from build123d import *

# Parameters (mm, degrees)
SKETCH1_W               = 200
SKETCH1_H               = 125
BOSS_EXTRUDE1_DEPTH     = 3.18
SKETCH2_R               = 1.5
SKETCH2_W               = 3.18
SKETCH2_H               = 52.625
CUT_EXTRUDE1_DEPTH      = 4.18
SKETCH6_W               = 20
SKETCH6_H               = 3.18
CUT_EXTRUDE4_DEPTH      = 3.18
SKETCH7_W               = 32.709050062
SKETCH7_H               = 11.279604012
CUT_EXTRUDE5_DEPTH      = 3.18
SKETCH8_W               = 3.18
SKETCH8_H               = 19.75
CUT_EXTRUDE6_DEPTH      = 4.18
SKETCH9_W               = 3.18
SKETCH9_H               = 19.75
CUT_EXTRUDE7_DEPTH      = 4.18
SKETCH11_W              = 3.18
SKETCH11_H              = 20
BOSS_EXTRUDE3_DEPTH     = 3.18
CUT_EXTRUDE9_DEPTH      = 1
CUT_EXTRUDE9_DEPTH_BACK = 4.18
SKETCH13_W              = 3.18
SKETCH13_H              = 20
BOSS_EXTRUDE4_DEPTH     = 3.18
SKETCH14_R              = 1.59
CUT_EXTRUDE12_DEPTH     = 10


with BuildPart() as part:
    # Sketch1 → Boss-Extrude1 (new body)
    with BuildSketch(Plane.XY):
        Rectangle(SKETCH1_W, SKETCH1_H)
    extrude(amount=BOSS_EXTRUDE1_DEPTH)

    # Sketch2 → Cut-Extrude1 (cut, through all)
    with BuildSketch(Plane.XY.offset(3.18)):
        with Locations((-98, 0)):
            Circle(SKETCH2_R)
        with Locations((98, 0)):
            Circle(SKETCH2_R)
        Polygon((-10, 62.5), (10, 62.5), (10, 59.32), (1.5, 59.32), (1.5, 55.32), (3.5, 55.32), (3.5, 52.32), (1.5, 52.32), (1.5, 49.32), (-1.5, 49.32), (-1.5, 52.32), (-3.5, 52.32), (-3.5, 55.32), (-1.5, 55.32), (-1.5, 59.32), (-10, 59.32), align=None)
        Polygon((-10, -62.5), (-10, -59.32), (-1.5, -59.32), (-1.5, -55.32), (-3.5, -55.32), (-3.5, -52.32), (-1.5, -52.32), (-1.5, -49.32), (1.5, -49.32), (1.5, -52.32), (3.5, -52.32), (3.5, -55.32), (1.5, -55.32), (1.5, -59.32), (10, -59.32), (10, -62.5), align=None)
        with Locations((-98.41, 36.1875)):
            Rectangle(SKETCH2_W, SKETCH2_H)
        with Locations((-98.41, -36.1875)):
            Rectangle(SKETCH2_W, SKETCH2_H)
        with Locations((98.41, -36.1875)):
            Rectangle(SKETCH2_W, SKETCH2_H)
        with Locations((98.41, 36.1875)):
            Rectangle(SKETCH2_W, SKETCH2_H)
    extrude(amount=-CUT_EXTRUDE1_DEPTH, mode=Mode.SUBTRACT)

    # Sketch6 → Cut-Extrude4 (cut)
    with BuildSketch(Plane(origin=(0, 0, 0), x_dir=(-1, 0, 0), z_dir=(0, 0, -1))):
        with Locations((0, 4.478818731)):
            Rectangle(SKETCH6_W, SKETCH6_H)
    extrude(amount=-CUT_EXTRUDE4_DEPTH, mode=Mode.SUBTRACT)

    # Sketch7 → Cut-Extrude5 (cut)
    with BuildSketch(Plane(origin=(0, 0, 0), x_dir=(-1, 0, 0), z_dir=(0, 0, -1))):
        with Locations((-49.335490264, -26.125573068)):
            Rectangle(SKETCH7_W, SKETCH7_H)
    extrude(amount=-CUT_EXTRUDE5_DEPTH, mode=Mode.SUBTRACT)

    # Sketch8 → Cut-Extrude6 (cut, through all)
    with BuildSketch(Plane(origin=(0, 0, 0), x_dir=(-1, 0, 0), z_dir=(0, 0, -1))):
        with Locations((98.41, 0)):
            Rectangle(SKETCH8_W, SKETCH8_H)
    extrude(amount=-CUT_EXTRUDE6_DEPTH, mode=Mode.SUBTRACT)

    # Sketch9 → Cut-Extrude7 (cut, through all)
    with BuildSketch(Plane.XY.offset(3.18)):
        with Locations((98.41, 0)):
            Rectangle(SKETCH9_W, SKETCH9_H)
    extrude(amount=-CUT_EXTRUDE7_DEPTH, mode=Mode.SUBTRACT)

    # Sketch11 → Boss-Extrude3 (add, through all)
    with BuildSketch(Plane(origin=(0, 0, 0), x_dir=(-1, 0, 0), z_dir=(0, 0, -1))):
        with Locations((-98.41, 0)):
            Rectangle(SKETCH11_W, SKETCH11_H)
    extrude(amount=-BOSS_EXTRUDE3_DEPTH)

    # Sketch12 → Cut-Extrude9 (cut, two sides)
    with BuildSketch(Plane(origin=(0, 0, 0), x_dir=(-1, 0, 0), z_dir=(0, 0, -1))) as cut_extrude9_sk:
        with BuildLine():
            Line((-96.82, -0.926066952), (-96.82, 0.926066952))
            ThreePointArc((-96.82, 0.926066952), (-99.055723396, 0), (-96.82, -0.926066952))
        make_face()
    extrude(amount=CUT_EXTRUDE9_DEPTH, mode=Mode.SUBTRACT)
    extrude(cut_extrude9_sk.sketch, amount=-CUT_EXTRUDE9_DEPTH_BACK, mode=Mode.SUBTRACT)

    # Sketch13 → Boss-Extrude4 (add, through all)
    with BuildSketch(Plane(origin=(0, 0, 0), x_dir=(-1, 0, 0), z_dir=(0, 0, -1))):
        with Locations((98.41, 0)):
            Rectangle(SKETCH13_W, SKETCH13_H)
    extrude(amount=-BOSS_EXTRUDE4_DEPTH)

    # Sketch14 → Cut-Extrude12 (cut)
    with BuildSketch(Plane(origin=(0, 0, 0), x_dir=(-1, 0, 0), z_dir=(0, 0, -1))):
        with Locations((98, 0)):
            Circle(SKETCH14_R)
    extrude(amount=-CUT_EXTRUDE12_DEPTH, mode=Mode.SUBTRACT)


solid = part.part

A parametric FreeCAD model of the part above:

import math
import FreeCAD as App
import Part
import Sketcher

doc = App.newDocument("Part")
body = doc.addObject("PartDesign::Body", "Body")

# Sketch on XY plane
sketch1 = body.newObject("Sketcher::SketchObject", "Sketch")
sketch1.AttachmentSupport = (doc.getObject("XY_Plane"), [""])
sketch1.MapMode = "FlatFace"
sketch1.addGeometry(Part.LineSegment(App.Vector(-100, 62, 0), App.Vector(-100, -62, 0)), False)
sketch1.addGeometry(Part.LineSegment(App.Vector(-100, -62, 0), App.Vector(100, -62, 0)), False)
sketch1.addGeometry(Part.LineSegment(App.Vector(100, -62, 0), App.Vector(100, 62, 0)), False)
sketch1.addGeometry(Part.LineSegment(App.Vector(100, 62, 0), App.Vector(-100, 62, 0)), False)
sketch1.addConstraint(Sketcher.Constraint("Coincident", 0, 2, 1, 1))
sketch1.addConstraint(Sketcher.Constraint("Coincident", 1, 2, 2, 1))
sketch1.addConstraint(Sketcher.Constraint("Coincident", 2, 2, 3, 1))
sketch1.addConstraint(Sketcher.Constraint("Coincident", 3, 2, 0, 1))
sketch1.addConstraint(Sketcher.Constraint("Vertical", 0))
sketch1.addConstraint(Sketcher.Constraint("Horizontal", 1))
sketch1.addConstraint(Sketcher.Constraint("Vertical", 2))
sketch1.addConstraint(Sketcher.Constraint("Horizontal", 3))
sketch1.addConstraint(Sketcher.Constraint("Symmetric", 0, 2, 2, 2, -1, 1))
sketch1.addConstraint(Sketcher.Constraint("DistanceX", 1, 1, 1, 2, 200.0))
sketch1.addConstraint(Sketcher.Constraint("DistanceY", 0, 2, 0, 1, 125.0))
pad1 = body.newObject("PartDesign::Pad", "Pad")
pad1.Profile = sketch1
pad1.Length = 3.18

# Sketch on XY plane
sketch2 = body.newObject("Sketcher::SketchObject", "Sketch001")
sketch2.AttachmentSupport = (doc.getObject("XY_Plane"), [""])
sketch2.MapMode = "FlatFace"
sketch2.AttachmentOffset = App.Placement(App.Vector(0, 0, 3.18), App.Rotation())
sketch2.addGeometry(Part.Circle(App.Vector(-98, 0, 0), App.Vector(0, 0, 1), 1.5), False)
sketch2.addGeometry(Part.Circle(App.Vector(98, 0, 0), App.Vector(0, 0, 1), 1.5), False)
sketch2.addGeometry(Part.LineSegment(App.Vector(10, 62.5, 0), App.Vector(-10, 62.5, 0)), False)
sketch2.addGeometry(Part.LineSegment(App.Vector(-10, 62.5, 0), App.Vector(-10, 59.3, 0)), False)
sketch2.addGeometry(Part.LineSegment(App.Vector(-10, 59.3, 0), App.Vector(-1.5, 59.3, 0)), False)
sketch2.addGeometry(Part.LineSegment(App.Vector(-1.5, 59.3, 0), App.Vector(-1.5, 55.3, 0)), False)
sketch2.addGeometry(Part.LineSegment(App.Vector(-1.5, 55.3, 0), App.Vector(-3.5, 55.3, 0)), False)
sketch2.addGeometry(Part.LineSegment(App.Vector(-3.5, 55.3, 0), App.Vector(-3.5, 52.3, 0)), False)
sketch2.addGeometry(Part.LineSegment(App.Vector(-3.5, 52.3, 0), App.Vector(-1.5, 52.3, 0)), False)
sketch2.addGeometry(Part.LineSegment(App.Vector(-1.5, 52.3, 0), App.Vector(-1.5, 49.3, 0)), False)
sketch2.addGeometry(Part.LineSegment(App.Vector(-1.5, 49.3, 0), App.Vector(1.5, 49.3, 0)), False)
sketch2.addGeometry(Part.LineSegment(App.Vector(1.5, 49.3, 0), App.Vector(1.5, 52.3, 0)), False)
sketch2.addGeometry(Part.LineSegment(App.Vector(1.5, 52.3, 0), App.Vector(3.5, 52.3, 0)), False)
sketch2.addGeometry(Part.LineSegment(App.Vector(3.5, 52.3, 0), App.Vector(3.5, 55.3, 0)), False)
sketch2.addGeometry(Part.LineSegment(App.Vector(3.5, 55.3, 0), App.Vector(1.5, 55.3, 0)), False)
sketch2.addGeometry(Part.LineSegment(App.Vector(1.5, 55.3, 0), App.Vector(1.5, 59.3, 0)), False)
sketch2.addGeometry(Part.LineSegment(App.Vector(1.5, 59.3, 0), App.Vector(10, 59.3, 0)), False)
sketch2.addGeometry(Part.LineSegment(App.Vector(10, 59.3, 0), App.Vector(10, 62.5, 0)), False)
sketch2.addGeometry(Part.LineSegment(App.Vector(-10, -59.3, 0), App.Vector(-10, -62.5, 0)), False)
sketch2.addGeometry(Part.LineSegment(App.Vector(-10, -62.5, 0), App.Vector(10, -62.5, 0)), False)
sketch2.addGeometry(Part.LineSegment(App.Vector(10, -62.5, 0), App.Vector(10, -59.3, 0)), False)
sketch2.addGeometry(Part.LineSegment(App.Vector(10, -59.3, 0), App.Vector(1.5, -59.3, 0)), False)
sketch2.addGeometry(Part.LineSegment(App.Vector(1.5, -59.3, 0), App.Vector(1.5, -55.3, 0)), False)
sketch2.addGeometry(Part.LineSegment(App.Vector(1.5, -55.3, 0), App.Vector(3.5, -55.3, 0)), False)
sketch2.addGeometry(Part.LineSegment(App.Vector(3.5, -55.3, 0), App.Vector(3.5, -52.3, 0)), False)
sketch2.addGeometry(Part.LineSegment(App.Vector(3.5, -52.3, 0), App.Vector(1.5, -52.3, 0)), False)
sketch2.addGeometry(Part.LineSegment(App.Vector(1.5, -52.3, 0), App.Vector(1.5, -49.3, 0)), False)
sketch2.addGeometry(Part.LineSegment(App.Vector(1.5, -49.3, 0), App.Vector(-1.5, -49.3, 0)), False)
sketch2.addGeometry(Part.LineSegment(App.Vector(-1.5, -49.3, 0), App.Vector(-1.5, -52.3, 0)), False)
sketch2.addGeometry(Part.LineSegment(App.Vector(-1.5, -52.3, 0), App.Vector(-3.5, -52.3, 0)), False)
sketch2.addGeometry(Part.LineSegment(App.Vector(-3.5, -52.3, 0), App.Vector(-3.5, -55.3, 0)), False)
sketch2.addGeometry(Part.LineSegment(App.Vector(-3.5, -55.3, 0), App.Vector(-1.5, -55.3, 0)), False)
sketch2.addGeometry(Part.LineSegment(App.Vector(-1.5, -55.3, 0), App.Vector(-1.5, -59.3, 0)), False)
sketch2.addGeometry(Part.LineSegment(App.Vector(-1.5, -59.3, 0), App.Vector(-10, -59.3, 0)), False)
sketch2.addGeometry(Part.LineSegment(App.Vector(-100, 62.5, 0), App.Vector(-100, 9.9, 0)), False)
sketch2.addGeometry(Part.LineSegment(App.Vector(-100, 9.9, 0), App.Vector(-96.8, 9.9, 0)), False)
sketch2.addGeometry(Part.LineSegment(App.Vector(-96.8, 9.9, 0), App.Vector(-96.8, 62.5, 0)), False)
sketch2.addGeometry(Part.LineSegment(App.Vector(-96.8, 62.5, 0), App.Vector(-100, 62.5, 0)), False)
sketch2.addGeometry(Part.LineSegment(App.Vector(-100, -9.9, 0), App.Vector(-100, -62.5, 0)), False)
sketch2.addGeometry(Part.LineSegment(App.Vector(-100, -62.5, 0), App.Vector(-96.8, -62.5, 0)), False)
sketch2.addGeometry(Part.LineSegment(App.Vector(-96.8, -62.5, 0), App.Vector(-96.8, -9.9, 0)), False)
sketch2.addGeometry(Part.LineSegment(App.Vector(-96.8, -9.9, 0), App.Vector(-100, -9.9, 0)), False)
sketch2.addGeometry(Part.LineSegment(App.Vector(96.8, -9.9, 0), App.Vector(96.8, -62.5, 0)), False)
sketch2.addGeometry(Part.LineSegment(App.Vector(96.8, -62.5, 0), App.Vector(100, -62.5, 0)), False)
sketch2.addGeometry(Part.LineSegment(App.Vector(100, -62.5, 0), App.Vector(100, -9.9, 0)), False)
sketch2.addGeometry(Part.LineSegment(App.Vector(100, -9.9, 0), App.Vector(96.8, -9.9, 0)), False)
sketch2.addGeometry(Part.LineSegment(App.Vector(96.8, 62.5, 0), App.Vector(96.8, 9.9, 0)), False)
sketch2.addGeometry(Part.LineSegment(App.Vector(96.8, 9.9, 0), App.Vector(100, 9.9, 0)), False)
sketch2.addGeometry(Part.LineSegment(App.Vector(100, 9.9, 0), App.Vector(100, 62.5, 0)), False)
sketch2.addGeometry(Part.LineSegment(App.Vector(100, 62.5, 0), App.Vector(96.8, 62.5, 0)), False)
sketch2.addConstraint(Sketcher.Constraint("Coincident", 2, 2, 3, 1))
sketch2.addConstraint(Sketcher.Constraint("Coincident", 3, 2, 4, 1))
sketch2.addConstraint(Sketcher.Constraint("Coincident", 4, 2, 5, 1))
sketch2.addConstraint(Sketcher.Constraint("Coincident", 5, 2, 6, 1))
sketch2.addConstraint(Sketcher.Constraint("Coincident", 6, 2, 7, 1))
sketch2.addConstraint(Sketcher.Constraint("Coincident", 7, 2, 8, 1))
sketch2.addConstraint(Sketcher.Constraint("Coincident", 8, 2, 9, 1))
sketch2.addConstraint(Sketcher.Constraint("Coincident", 9, 2, 10, 1))
sketch2.addConstraint(Sketcher.Constraint("Coincident", 10, 2, 11, 1))
sketch2.addConstraint(Sketcher.Constraint("Coincident", 11, 2, 12, 1))
sketch2.addConstraint(Sketcher.Constraint("Coincident", 12, 2, 13, 1))
sketch2.addConstraint(Sketcher.Constraint("Coincident", 13, 2, 14, 1))
sketch2.addConstraint(Sketcher.Constraint("Coincident", 14, 2, 15, 1))
sketch2.addConstraint(Sketcher.Constraint("Coincident", 15, 2, 16, 1))
sketch2.addConstraint(Sketcher.Constraint("Coincident", 16, 2, 17, 1))
sketch2.addConstraint(Sketcher.Constraint("Coincident", 17, 2, 2, 1))
sketch2.addConstraint(Sketcher.Constraint("Coincident", 18, 2, 19, 1))
sketch2.addConstraint(Sketcher.Constraint("Coincident", 19, 2, 20, 1))
sketch2.addConstraint(Sketcher.Constraint("Coincident", 20, 2, 21, 1))
sketch2.addConstraint(Sketcher.Constraint("Coincident", 21, 2, 22, 1))
sketch2.addConstraint(Sketcher.Constraint("Coincident", 22, 2, 23, 1))
sketch2.addConstraint(Sketcher.Constraint("Coincident", 23, 2, 24, 1))
sketch2.addConstraint(Sketcher.Constraint("Coincident", 24, 2, 25, 1))
sketch2.addConstraint(Sketcher.Constraint("Coincident", 25, 2, 26, 1))
sketch2.addConstraint(Sketcher.Constraint("Coincident", 26, 2, 27, 1))
sketch2.addConstraint(Sketcher.Constraint("Coincident", 27, 2, 28, 1))
sketch2.addConstraint(Sketcher.Constraint("Coincident", 28, 2, 29, 1))
sketch2.addConstraint(Sketcher.Constraint("Coincident", 29, 2, 30, 1))
sketch2.addConstraint(Sketcher.Constraint("Coincident", 30, 2, 31, 1))
sketch2.addConstraint(Sketcher.Constraint("Coincident", 31, 2, 32, 1))
sketch2.addConstraint(Sketcher.Constraint("Coincident", 32, 2, 33, 1))
sketch2.addConstraint(Sketcher.Constraint("Coincident", 33, 2, 18, 1))
sketch2.addConstraint(Sketcher.Constraint("Coincident", 34, 2, 35, 1))
sketch2.addConstraint(Sketcher.Constraint("Coincident", 35, 2, 36, 1))
sketch2.addConstraint(Sketcher.Constraint("Coincident", 36, 2, 37, 1))
sketch2.addConstraint(Sketcher.Constraint("Coincident", 37, 2, 34, 1))
sketch2.addConstraint(Sketcher.Constraint("Coincident", 38, 2, 39, 1))
sketch2.addConstraint(Sketcher.Constraint("Coincident", 39, 2, 40, 1))
sketch2.addConstraint(Sketcher.Constraint("Coincident", 40, 2, 41, 1))
sketch2.addConstraint(Sketcher.Constraint("Coincident", 41, 2, 38, 1))
sketch2.addConstraint(Sketcher.Constraint("Coincident", 42, 2, 43, 1))
sketch2.addConstraint(Sketcher.Constraint("Coincident", 43, 2, 44, 1))
sketch2.addConstraint(Sketcher.Constraint("Coincident", 44, 2, 45, 1))
sketch2.addConstraint(Sketcher.Constraint("Coincident", 45, 2, 42, 1))
sketch2.addConstraint(Sketcher.Constraint("Coincident", 46, 2, 47, 1))
sketch2.addConstraint(Sketcher.Constraint("Coincident", 47, 2, 48, 1))
sketch2.addConstraint(Sketcher.Constraint("Coincident", 48, 2, 49, 1))
sketch2.addConstraint(Sketcher.Constraint("Coincident", 49, 2, 46, 1))
sketch2.addConstraint(Sketcher.Constraint("Horizontal", 2))
sketch2.addConstraint(Sketcher.Constraint("Vertical", 3))
sketch2.addConstraint(Sketcher.Constraint("Horizontal", 4))
sketch2.addConstraint(Sketcher.Constraint("Vertical", 5))
sketch2.addConstraint(Sketcher.Constraint("Horizontal", 6))
sketch2.addConstraint(Sketcher.Constraint("Vertical", 7))
sketch2.addConstraint(Sketcher.Constraint("Horizontal", 8))
sketch2.addConstraint(Sketcher.Constraint("Vertical", 9))
sketch2.addConstraint(Sketcher.Constraint("Horizontal", 10))
sketch2.addConstraint(Sketcher.Constraint("Vertical", 11))
sketch2.addConstraint(Sketcher.Constraint("Horizontal", 12))
sketch2.addConstraint(Sketcher.Constraint("Vertical", 13))
sketch2.addConstraint(Sketcher.Constraint("Horizontal", 14))
sketch2.addConstraint(Sketcher.Constraint("Vertical", 15))
sketch2.addConstraint(Sketcher.Constraint("Horizontal", 16))
sketch2.addConstraint(Sketcher.Constraint("Vertical", 17))
sketch2.addConstraint(Sketcher.Constraint("Vertical", 18))
sketch2.addConstraint(Sketcher.Constraint("Horizontal", 19))
sketch2.addConstraint(Sketcher.Constraint("Vertical", 20))
sketch2.addConstraint(Sketcher.Constraint("Horizontal", 21))
sketch2.addConstraint(Sketcher.Constraint("Vertical", 22))
sketch2.addConstraint(Sketcher.Constraint("Horizontal", 23))
sketch2.addConstraint(Sketcher.Constraint("Vertical", 24))
sketch2.addConstraint(Sketcher.Constraint("Horizontal", 25))
sketch2.addConstraint(Sketcher.Constraint("Vertical", 26))
sketch2.addConstraint(Sketcher.Constraint("Horizontal", 27))
sketch2.addConstraint(Sketcher.Constraint("Vertical", 28))
sketch2.addConstraint(Sketcher.Constraint("Horizontal", 29))
sketch2.addConstraint(Sketcher.Constraint("Vertical", 30))
sketch2.addConstraint(Sketcher.Constraint("Horizontal", 31))
sketch2.addConstraint(Sketcher.Constraint("Vertical", 32))
sketch2.addConstraint(Sketcher.Constraint("Horizontal", 33))
sketch2.addConstraint(Sketcher.Constraint("Vertical", 34))
sketch2.addConstraint(Sketcher.Constraint("Horizontal", 35))
sketch2.addConstraint(Sketcher.Constraint("Vertical", 36))
sketch2.addConstraint(Sketcher.Constraint("Horizontal", 37))
sketch2.addConstraint(Sketcher.Constraint("Vertical", 38))
sketch2.addConstraint(Sketcher.Constraint("Horizontal", 39))
sketch2.addConstraint(Sketcher.Constraint("Vertical", 40))
sketch2.addConstraint(Sketcher.Constraint("Horizontal", 41))
sketch2.addConstraint(Sketcher.Constraint("Vertical", 42))
sketch2.addConstraint(Sketcher.Constraint("Horizontal", 43))
sketch2.addConstraint(Sketcher.Constraint("Vertical", 44))
sketch2.addConstraint(Sketcher.Constraint("Horizontal", 45))
sketch2.addConstraint(Sketcher.Constraint("Vertical", 46))
sketch2.addConstraint(Sketcher.Constraint("Horizontal", 47))
sketch2.addConstraint(Sketcher.Constraint("Vertical", 48))
sketch2.addConstraint(Sketcher.Constraint("Horizontal", 49))
sketch2.addConstraint(Sketcher.Constraint("Equal", 0, 1))
sketch2.addConstraint(Sketcher.Constraint("Symmetric", 0, 3, 1, 3, -1, 1))
sketch2.addConstraint(Sketcher.Constraint("Symmetric", 17, 2, 18, 2, -1, 1))
sketch2.addConstraint(Sketcher.Constraint("Symmetric", 3, 2, 20, 2, -1, 1))
sketch2.addConstraint(Sketcher.Constraint("Symmetric", 5, 2, 22, 2, -1, 1))
sketch2.addConstraint(Sketcher.Constraint("Symmetric", 7, 2, 24, 2, -1, 1))
sketch2.addConstraint(Sketcher.Constraint("Symmetric", 9, 2, 26, 2, -1, 1))
sketch2.addConstraint(Sketcher.Constraint("Symmetric", 11, 2, 28, 2, -1, 1))
sketch2.addConstraint(Sketcher.Constraint("Symmetric", 13, 2, 30, 2, -1, 1))
sketch2.addConstraint(Sketcher.Constraint("Symmetric", 15, 2, 32, 2, -1, 1))
sketch2.addConstraint(Sketcher.Constraint("Symmetric", 36, 2, 42, 2, -1, 1))
sketch2.addConstraint(Sketcher.Constraint("Symmetric", 34, 2, 44, 2, -1, 1))
sketch2.addConstraint(Sketcher.Constraint("Symmetric", 40, 2, 46, 2, -1, 1))
sketch2.addConstraint(Sketcher.Constraint("Symmetric", 38, 2, 48, 2, -1, 1))
sketch2.addConstraint(Sketcher.Constraint("Symmetric", 8, 2, 11, 2, -2))
sketch2.addConstraint(Sketcher.Constraint("Symmetric", 6, 2, 13, 2, -2))
sketch2.addConstraint(Sketcher.Constraint("Symmetric", 4, 2, 15, 2, -2))
sketch2.addConstraint(Sketcher.Constraint("Symmetric", 39, 2, 42, 2, -2))
sketch2.addConstraint(Sketcher.Constraint("Symmetric", 41, 2, 44, 2, -2))
sketch2.addConstraint(Sketcher.Constraint("PointOnObject", 0, 3, -1))
sketch2.addConstraint(Sketcher.Constraint("Horizontal", 17, 2, 36, 2))
sketch2.addConstraint(Sketcher.Constraint("Vertical", 5, 2, 8, 2))
sketch2.addConstraint(Sketcher.Constraint("Vertical", 3, 2, 18, 2))
sketch2.addConstraint(Sketcher.Constraint("Equal", 49, 3))
sketch2.addConstraint(Sketcher.Constraint("Equal", 27, 7))
sketch2.addConstraint(Sketcher.Constraint("Equal", 7, 9))
sketch2.addConstraint(Sketcher.Constraint("Diameter", 0, 3.0))
sketch2.addConstraint(Sketcher.Constraint("DistanceX", 2, 2, 2, 1, 20.0))
sketch2.addConstraint(Sketcher.Constraint("DistanceX", 6, 2, 6, 1, 2.0))
sketch2.addConstraint(Sketcher.Constraint("DistanceX", 10, 1, 10, 2, 3.0))
sketch2.addConstraint(Sketcher.Constraint("DistanceY", 5, 2, 5, 1, 4.0))
sketch2.addConstraint(Sketcher.Constraint("DistanceX", 0, 3, -1, 1, 98.0))
sketch2.addConstraint(Sketcher.Constraint("DistanceX", 34, 2, -1, 1, 100.0))
sketch2.addConstraint(Sketcher.Constraint("DistanceX", 35, 1, 35, 2, 3.18))
sketch2.addConstraint(Sketcher.Constraint("DistanceY", -1, 1, 2, 2, 62.5))
sketch2.addConstraint(Sketcher.Constraint("DistanceY", 34, 2, 34, 1, 52.625))
pocket1 = body.newObject("PartDesign::Pocket", "Pocket")
pocket1.Profile = sketch2
pocket1.Type = "ThroughAll"

# Sketch on XY plane
sketch3 = body.newObject("Sketcher::SketchObject", "Sketch002")
sketch3.AttachmentSupport = (doc.getObject("XY_Plane"), [""])
sketch3.MapMode = "FlatFace"
sketch3.addGeometry(Part.LineSegment(App.Vector(10, 6.1, 0), App.Vector(10, 2.9, 0)), False)
sketch3.addGeometry(Part.LineSegment(App.Vector(10, 2.9, 0), App.Vector(-10, 2.9, 0)), False)
sketch3.addGeometry(Part.LineSegment(App.Vector(-10, 2.9, 0), App.Vector(-10, 6.1, 0)), False)
sketch3.addGeometry(Part.LineSegment(App.Vector(-10, 6.1, 0), App.Vector(10, 6.1, 0)), False)
sketch3.addConstraint(Sketcher.Constraint("Coincident", 0, 2, 1, 1))
sketch3.addConstraint(Sketcher.Constraint("Coincident", 1, 2, 2, 1))
sketch3.addConstraint(Sketcher.Constraint("Coincident", 2, 2, 3, 1))
sketch3.addConstraint(Sketcher.Constraint("Coincident", 3, 2, 0, 1))
sketch3.addConstraint(Sketcher.Constraint("Vertical", 0))
sketch3.addConstraint(Sketcher.Constraint("Horizontal", 1))
sketch3.addConstraint(Sketcher.Constraint("Vertical", 2))
sketch3.addConstraint(Sketcher.Constraint("Horizontal", 3))
sketch3.addConstraint(Sketcher.Constraint("DistanceX", 1, 2, 1, 1, 20.0))
sketch3.addConstraint(Sketcher.Constraint("DistanceX", -1, 1, 0, 2, 10.0))
sketch3.addConstraint(Sketcher.Constraint("DistanceY", 0, 2, 0, 1, 3.18))
sketch3.addConstraint(Sketcher.Constraint("DistanceY", -1, 1, 0, 2, 2.888819))
pocket2 = body.newObject("PartDesign::Pocket", "Pocket001")
pocket2.Profile = sketch3
pocket2.Length = 3.18
pocket2.Reversed = True

# Sketch on XY plane
sketch4 = body.newObject("Sketcher::SketchObject", "Sketch003")
sketch4.AttachmentSupport = (doc.getObject("XY_Plane"), [""])
sketch4.MapMode = "FlatFace"
sketch4.addGeometry(Part.LineSegment(App.Vector(66, -20, 0), App.Vector(66, -32, 0)), False)
sketch4.addGeometry(Part.LineSegment(App.Vector(66, -32, 0), App.Vector(33, -32, 0)), False)
sketch4.addGeometry(Part.LineSegment(App.Vector(33, -32, 0), App.Vector(33, -20, 0)), False)
sketch4.addGeometry(Part.LineSegment(App.Vector(33, -20, 0), App.Vector(66, -20, 0)), False)
sketch4.addConstraint(Sketcher.Constraint("Coincident", 0, 2, 1, 1))
sketch4.addConstraint(Sketcher.Constraint("Coincident", 1, 2, 2, 1))
sketch4.addConstraint(Sketcher.Constraint("Coincident", 2, 2, 3, 1))
sketch4.addConstraint(Sketcher.Constraint("Coincident", 3, 2, 0, 1))
sketch4.addConstraint(Sketcher.Constraint("Vertical", 0))
sketch4.addConstraint(Sketcher.Constraint("Horizontal", 1))
sketch4.addConstraint(Sketcher.Constraint("Vertical", 2))
sketch4.addConstraint(Sketcher.Constraint("Horizontal", 3))
sketch4.addConstraint(Sketcher.Constraint("DistanceX", 1, 2, 1, 1, 32.70905))
sketch4.addConstraint(Sketcher.Constraint("DistanceY", 0, 2, 0, 1, 11.279604))
sketch4.addConstraint(Sketcher.Constraint("DistanceY", 2, 2, -1, 1, 20.485771))
sketch4.addConstraint(Sketcher.Constraint("DistanceX", -1, 1, 0, 2, 65.690015))
pocket3 = body.newObject("PartDesign::Pocket", "Pocket002")
pocket3.Profile = sketch4
pocket3.Length = 3.18
pocket3.Reversed = True

# Sketch on XY plane
sketch5 = body.newObject("Sketcher::SketchObject", "Sketch004")
sketch5.AttachmentSupport = (doc.getObject("XY_Plane"), [""])
sketch5.MapMode = "FlatFace"
sketch5.addGeometry(Part.LineSegment(App.Vector(-96.8, 9.9, 0), App.Vector(-96.8, -9.9, 0)), False)
sketch5.addGeometry(Part.LineSegment(App.Vector(-96.8, -9.9, 0), App.Vector(-100, -9.9, 0)), False)
sketch5.addGeometry(Part.LineSegment(App.Vector(-100, -9.9, 0), App.Vector(-100, 9.9, 0)), False)
sketch5.addGeometry(Part.LineSegment(App.Vector(-100, 9.9, 0), App.Vector(-96.8, 9.9, 0)), False)
sketch5.addConstraint(Sketcher.Constraint("Coincident", 0, 2, 1, 1))
sketch5.addConstraint(Sketcher.Constraint("Coincident", 1, 2, 2, 1))
sketch5.addConstraint(Sketcher.Constraint("Coincident", 2, 2, 3, 1))
sketch5.addConstraint(Sketcher.Constraint("Coincident", 3, 2, 0, 1))
sketch5.addConstraint(Sketcher.Constraint("Vertical", 0))
sketch5.addConstraint(Sketcher.Constraint("Horizontal", 1))
sketch5.addConstraint(Sketcher.Constraint("Vertical", 2))
sketch5.addConstraint(Sketcher.Constraint("Horizontal", 3))
sketch5.addConstraint(Sketcher.Constraint("DistanceX", 1, 2, -1, 1, 100.0))
sketch5.addConstraint(Sketcher.Constraint("DistanceX", 1, 2, 1, 1, 3.18))
sketch5.addConstraint(Sketcher.Constraint("DistanceY", 0, 2, 0, 1, 19.75))
sketch5.addConstraint(Sketcher.Constraint("DistanceY", 0, 2, -1, 1, 9.875))
pocket4 = body.newObject("PartDesign::Pocket", "Pocket003")
pocket4.Profile = sketch5
pocket4.Type = "ThroughAll"
pocket4.Reversed = True

# Sketch on XY plane
sketch6 = body.newObject("Sketcher::SketchObject", "Sketch005")
sketch6.AttachmentSupport = (doc.getObject("XY_Plane"), [""])
sketch6.MapMode = "FlatFace"
sketch6.AttachmentOffset = App.Placement(App.Vector(0, 0, 3.18), App.Rotation())
sketch6.addGeometry(Part.LineSegment(App.Vector(96.8, 9.9, 0), App.Vector(96.8, -9.9, 0)), False)
sketch6.addGeometry(Part.LineSegment(App.Vector(96.8, -9.9, 0), App.Vector(100, -9.9, 0)), False)
sketch6.addGeometry(Part.LineSegment(App.Vector(100, -9.9, 0), App.Vector(100, 9.9, 0)), False)
sketch6.addGeometry(Part.LineSegment(App.Vector(100, 9.9, 0), App.Vector(96.8, 9.9, 0)), False)
sketch6.addConstraint(Sketcher.Constraint("Coincident", 0, 2, 1, 1))
sketch6.addConstraint(Sketcher.Constraint("Coincident", 1, 2, 2, 1))
sketch6.addConstraint(Sketcher.Constraint("Coincident", 2, 2, 3, 1))
sketch6.addConstraint(Sketcher.Constraint("Coincident", 3, 2, 0, 1))
sketch6.addConstraint(Sketcher.Constraint("Vertical", 0))
sketch6.addConstraint(Sketcher.Constraint("Horizontal", 1))
sketch6.addConstraint(Sketcher.Constraint("Vertical", 2))
sketch6.addConstraint(Sketcher.Constraint("Horizontal", 3))
sketch6.addConstraint(Sketcher.Constraint("DistanceX", -1, 1, 1, 2, 100.0))
sketch6.addConstraint(Sketcher.Constraint("DistanceX", 1, 1, 1, 2, 3.18))
sketch6.addConstraint(Sketcher.Constraint("DistanceY", 0, 2, 0, 1, 19.75))
sketch6.addConstraint(Sketcher.Constraint("DistanceY", 0, 2, -1, 1, 9.875))
pocket5 = body.newObject("PartDesign::Pocket", "Pocket004")
pocket5.Profile = sketch6
pocket5.Type = "ThroughAll"

# Sketch on XY plane
sketch7 = body.newObject("Sketcher::SketchObject", "Sketch006")
sketch7.AttachmentSupport = (doc.getObject("XY_Plane"), [""])
sketch7.MapMode = "FlatFace"
sketch7.addGeometry(Part.LineSegment(App.Vector(100, 10, 0), App.Vector(100, -10, 0)), False)
sketch7.addGeometry(Part.LineSegment(App.Vector(100, -10, 0), App.Vector(96.8, -10, 0)), False)
sketch7.addGeometry(Part.LineSegment(App.Vector(96.8, -10, 0), App.Vector(96.8, 10, 0)), False)
sketch7.addGeometry(Part.LineSegment(App.Vector(96.8, 10, 0), App.Vector(100, 10, 0)), False)
sketch7.addConstraint(Sketcher.Constraint("Coincident", 0, 2, 1, 1))
sketch7.addConstraint(Sketcher.Constraint("Coincident", 1, 2, 2, 1))
sketch7.addConstraint(Sketcher.Constraint("Coincident", 2, 2, 3, 1))
sketch7.addConstraint(Sketcher.Constraint("Coincident", 3, 2, 0, 1))
sketch7.addConstraint(Sketcher.Constraint("Vertical", 0))
sketch7.addConstraint(Sketcher.Constraint("Horizontal", 1))
sketch7.addConstraint(Sketcher.Constraint("Vertical", 2))
sketch7.addConstraint(Sketcher.Constraint("Horizontal", 3))
sketch7.addConstraint(Sketcher.Constraint("DistanceY", 0, 2, 0, 1, 20.0))
sketch7.addConstraint(Sketcher.Constraint("DistanceX", -1, 1, 0, 2, 100.0))
sketch7.addConstraint(Sketcher.Constraint("DistanceY", 0, 2, -1, 1, 10.0))
sketch7.addConstraint(Sketcher.Constraint("DistanceX", 1, 2, 1, 1, 3.18))
pad2 = body.newObject("PartDesign::Pad", "Pad001")
pad2.Profile = sketch7
pad2.Length = 3.18

# Sketch on XY plane
sketch8 = body.newObject("Sketcher::SketchObject", "Sketch007")
sketch8.AttachmentSupport = (doc.getObject("XY_Plane"), [""])
sketch8.MapMode = "FlatFace"
sketch8.addGeometry(Part.LineSegment(App.Vector(96.8, -0.9, 0), App.Vector(96.8, 0.9, 0)), False)
sketch8.addGeometry(Part.ArcOfCircle(Part.Circle(App.Vector(97.7, 0, 0), App.Vector(0, 0, 1), 1.3), math.radians(-135), math.radians(135)), False)
sketch8.addConstraint(Sketcher.Constraint("Coincident", 0, 1, 1, 1))
sketch8.addConstraint(Sketcher.Constraint("Coincident", 1, 2, 0, 2))
sketch8.addConstraint(Sketcher.Constraint("Vertical", 0))
sketch8.addConstraint(Sketcher.Constraint("PointOnObject", 1, 3, -1))
sketch8.addConstraint(Sketcher.Constraint("DistanceX", -1, 1, 0, 1, 96.82))
sketch8.addConstraint(Sketcher.Constraint("Radius", 1, 1.309656))
sketch8.addConstraint(Sketcher.Constraint("DistanceY", 0, 1, 0, 2, 1.852134))
pocket6 = body.newObject("PartDesign::Pocket", "Pocket005")
pocket6.Profile = sketch8
pocket6.Type = "ThroughAll"
pocket6.Midplane = True

# Sketch on XY plane
sketch9 = body.newObject("Sketcher::SketchObject", "Sketch008")
sketch9.AttachmentSupport = (doc.getObject("XY_Plane"), [""])
sketch9.MapMode = "FlatFace"
sketch9.addGeometry(Part.LineSegment(App.Vector(-96.8, 10, 0), App.Vector(-96.8, -10, 0)), False)
sketch9.addGeometry(Part.LineSegment(App.Vector(-96.8, -10, 0), App.Vector(-100, -10, 0)), False)
sketch9.addGeometry(Part.LineSegment(App.Vector(-100, -10, 0), App.Vector(-100, 10, 0)), False)
sketch9.addGeometry(Part.LineSegment(App.Vector(-100, 10, 0), App.Vector(-96.8, 10, 0)), False)
sketch9.addConstraint(Sketcher.Constraint("Coincident", 0, 2, 1, 1))
sketch9.addConstraint(Sketcher.Constraint("Coincident", 1, 2, 2, 1))
sketch9.addConstraint(Sketcher.Constraint("Coincident", 2, 2, 3, 1))
sketch9.addConstraint(Sketcher.Constraint("Coincident", 3, 2, 0, 1))
sketch9.addConstraint(Sketcher.Constraint("Vertical", 0))
sketch9.addConstraint(Sketcher.Constraint("Horizontal", 1))
sketch9.addConstraint(Sketcher.Constraint("Vertical", 2))
sketch9.addConstraint(Sketcher.Constraint("Horizontal", 3))
sketch9.addConstraint(Sketcher.Constraint("DistanceY", 0, 2, 0, 1, 20.0))
sketch9.addConstraint(Sketcher.Constraint("DistanceY", 0, 2, -1, 1, 10.0))
sketch9.addConstraint(Sketcher.Constraint("DistanceX", 1, 2, -1, 1, 100.0))
sketch9.addConstraint(Sketcher.Constraint("DistanceX", 1, 2, 1, 1, 3.18))
pad3 = body.newObject("PartDesign::Pad", "Pad002")
pad3.Profile = sketch9
pad3.Length = 3.18

# Sketch on XY plane
sketch10 = body.newObject("Sketcher::SketchObject", "Sketch009")
sketch10.AttachmentSupport = (doc.getObject("XY_Plane"), [""])
sketch10.MapMode = "FlatFace"
sketch10.addGeometry(Part.Circle(App.Vector(-98, 0, 0), App.Vector(0, 0, 1), 1.6), False)
sketch10.addConstraint(Sketcher.Constraint("PointOnObject", 0, 3, -1))
sketch10.addConstraint(Sketcher.Constraint("Diameter", 0, 3.18))
sketch10.addConstraint(Sketcher.Constraint("DistanceX", 0, 3, -1, 1, 98.0))
pocket7 = body.newObject("PartDesign::Pocket", "Pocket006")
pocket7.Profile = sketch10
pocket7.Length = 10
pocket7.Reversed = True

doc.recompute()
